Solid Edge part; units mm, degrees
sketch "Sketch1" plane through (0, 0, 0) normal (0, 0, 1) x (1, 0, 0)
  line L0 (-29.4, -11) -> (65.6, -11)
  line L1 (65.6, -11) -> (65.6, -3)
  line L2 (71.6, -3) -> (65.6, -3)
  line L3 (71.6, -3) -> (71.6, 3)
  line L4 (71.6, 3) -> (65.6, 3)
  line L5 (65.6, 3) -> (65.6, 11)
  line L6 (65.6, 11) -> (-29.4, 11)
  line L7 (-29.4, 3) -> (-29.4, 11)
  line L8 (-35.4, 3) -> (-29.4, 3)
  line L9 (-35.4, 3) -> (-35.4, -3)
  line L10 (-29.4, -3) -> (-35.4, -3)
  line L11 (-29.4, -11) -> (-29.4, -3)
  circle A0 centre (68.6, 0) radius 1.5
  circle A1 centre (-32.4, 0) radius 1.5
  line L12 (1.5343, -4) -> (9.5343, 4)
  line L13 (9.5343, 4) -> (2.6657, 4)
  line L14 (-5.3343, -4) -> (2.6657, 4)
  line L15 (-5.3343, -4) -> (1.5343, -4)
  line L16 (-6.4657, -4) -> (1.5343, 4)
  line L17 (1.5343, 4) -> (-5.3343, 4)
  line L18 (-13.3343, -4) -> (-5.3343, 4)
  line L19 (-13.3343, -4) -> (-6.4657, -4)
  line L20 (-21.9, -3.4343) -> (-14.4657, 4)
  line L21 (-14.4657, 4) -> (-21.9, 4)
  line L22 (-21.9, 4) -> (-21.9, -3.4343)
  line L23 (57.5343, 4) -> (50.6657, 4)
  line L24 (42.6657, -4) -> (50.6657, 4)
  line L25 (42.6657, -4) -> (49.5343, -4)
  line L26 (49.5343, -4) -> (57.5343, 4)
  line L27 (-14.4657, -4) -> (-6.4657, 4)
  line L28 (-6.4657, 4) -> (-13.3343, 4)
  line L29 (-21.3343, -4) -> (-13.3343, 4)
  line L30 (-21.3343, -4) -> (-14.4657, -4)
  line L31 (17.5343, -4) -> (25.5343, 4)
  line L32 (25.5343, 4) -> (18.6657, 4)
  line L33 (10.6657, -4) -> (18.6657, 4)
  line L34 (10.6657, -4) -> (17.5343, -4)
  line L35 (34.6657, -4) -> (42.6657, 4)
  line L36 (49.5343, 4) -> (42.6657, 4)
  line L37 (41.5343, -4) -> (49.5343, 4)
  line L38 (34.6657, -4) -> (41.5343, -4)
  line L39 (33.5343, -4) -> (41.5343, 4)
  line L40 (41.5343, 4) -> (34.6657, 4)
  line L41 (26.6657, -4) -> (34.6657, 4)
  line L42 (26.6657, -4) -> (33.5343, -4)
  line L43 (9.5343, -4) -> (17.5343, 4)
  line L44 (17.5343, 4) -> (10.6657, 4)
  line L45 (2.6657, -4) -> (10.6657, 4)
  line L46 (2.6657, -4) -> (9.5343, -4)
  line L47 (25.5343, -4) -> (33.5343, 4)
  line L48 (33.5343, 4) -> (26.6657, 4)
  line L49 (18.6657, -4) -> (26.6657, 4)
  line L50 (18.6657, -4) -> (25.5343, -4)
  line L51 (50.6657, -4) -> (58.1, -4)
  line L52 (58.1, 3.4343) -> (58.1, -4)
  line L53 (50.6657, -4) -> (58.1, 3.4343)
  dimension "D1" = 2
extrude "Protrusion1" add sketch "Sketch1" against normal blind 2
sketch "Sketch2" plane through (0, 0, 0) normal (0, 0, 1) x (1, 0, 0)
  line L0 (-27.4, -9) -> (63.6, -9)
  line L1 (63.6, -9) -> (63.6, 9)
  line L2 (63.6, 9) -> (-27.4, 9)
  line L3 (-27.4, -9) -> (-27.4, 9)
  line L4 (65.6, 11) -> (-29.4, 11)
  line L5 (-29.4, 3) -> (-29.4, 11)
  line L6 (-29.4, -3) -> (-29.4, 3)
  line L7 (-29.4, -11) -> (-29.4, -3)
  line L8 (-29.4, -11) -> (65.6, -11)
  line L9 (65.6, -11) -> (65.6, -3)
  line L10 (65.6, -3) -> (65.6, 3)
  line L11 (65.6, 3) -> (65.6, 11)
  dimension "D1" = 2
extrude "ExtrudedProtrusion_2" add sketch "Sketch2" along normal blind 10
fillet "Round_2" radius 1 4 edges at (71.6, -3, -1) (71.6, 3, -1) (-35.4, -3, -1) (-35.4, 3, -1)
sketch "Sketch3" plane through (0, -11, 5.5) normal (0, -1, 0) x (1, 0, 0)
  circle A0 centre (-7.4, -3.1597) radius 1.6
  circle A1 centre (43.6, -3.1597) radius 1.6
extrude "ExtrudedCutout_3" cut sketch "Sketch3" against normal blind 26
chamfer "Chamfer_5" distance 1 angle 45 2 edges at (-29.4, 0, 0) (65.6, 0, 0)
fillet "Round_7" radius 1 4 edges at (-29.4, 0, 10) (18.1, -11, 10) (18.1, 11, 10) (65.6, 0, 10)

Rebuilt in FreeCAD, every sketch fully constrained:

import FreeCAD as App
import Part
import Sketcher

V = App.Vector


def edges_at(feature, points):
    """Names of the edges that pass closest to the given points."""
    edges = feature.Shape.Edges
    near = lambda p: min(range(len(edges)), key=lambda i: edges[i].distToShape(Part.Vertex(*p))[0])
    return sorted({f"Edge{near(p) + 1}" for p in points})


def add_polygon(sketch, points):
    """Adds a closed chain of lines whose ends are joined by coincident constraints."""
    first, n = sketch.GeometryCount, len(points)
    for a, b in zip(points, points[1:] + points[:1]):
        sketch.addGeometry(Part.LineSegment(App.Vector(*a, 0), App.Vector(*b, 0)), False)
    for i in range(n):
        sketch.addConstraint(Sketcher.Constraint("Coincident", first + i, 2, first + (i + 1) % n, 1))

doc = App.newDocument("Part")
body = doc.addObject("PartDesign::Body", "Body")

sketch1 = doc.addObject("Sketcher::SketchObject", "Sketch")
body.addObject(sketch1)
sketch1.AttachmentSupport = (doc.XY_Plane, [""])
sketch1.MapMode = "FlatFace"
add_polygon(sketch1, [(-29.4, -3), (-29.4, -11), (65.6, -11), (65.6, -3), (71.6, -3), (71.6, 3), (65.6, 3), (65.6, 11), (-29.4, 11), (-29.4, 3), (-35.4, 3), (-35.4, -3)])
add_polygon(sketch1, [(58.1, -4), (50.7, -4), (58.1, 3.4)])
sketch1.addGeometry(Part.Circle(V(-32.4, 0, 0), V(0, 0, 1), 1.5), False)
add_polygon(sketch1, [(-14.5, 4), (-21.9, -3.4), (-21.9, 4)])
add_polygon(sketch1, [(-6.5, 4), (-14.5, -4), (-21.3, -4), (-13.3, 4)])
add_polygon(sketch1, [(1.5, 4), (-6.5, -4), (-13.3, -4), (-5.3, 4)])
add_polygon(sketch1, [(9.5, 4), (1.5, -4), (-5.3, -4), (2.7, 4)])
add_polygon(sketch1, [(17.5, 4), (9.5, -4), (2.7, -4), (10.7, 4)])
add_polygon(sketch1, [(25.5, 4), (17.5, -4), (10.7, -4), (18.7, 4)])
add_polygon(sketch1, [(33.5, 4), (25.5, -4), (18.7, -4), (26.7, 4)])
add_polygon(sketch1, [(41.5, 4), (33.5, -4), (26.7, -4), (34.7, 4)])
add_polygon(sketch1, [(41.5, -4), (34.7, -4), (42.7, 4), (49.5, 4)])
add_polygon(sketch1, [(50.7, 4), (57.5, 4), (49.5, -4), (42.7, -4)])
sketch1.addGeometry(Part.Circle(V(68.6, 0, 0), V(0, 0, 1), 1.5), False)
sketch1.addConstraint([
    Sketcher.Constraint("Vertical", 0),
    Sketcher.Constraint("Horizontal", 1),
    Sketcher.Constraint("Vertical", 2),
    Sketcher.Constraint("Horizontal", 3),
    Sketcher.Constraint("Vertical", 4),
    Sketcher.Constraint("Horizontal", 5),
    Sketcher.Constraint("Vertical", 6),
    Sketcher.Constraint("Horizontal", 7),
    Sketcher.Constraint("Vertical", 8),
    Sketcher.Constraint("Horizontal", 9),
    Sketcher.Constraint("Vertical", 10),
    Sketcher.Constraint("Horizontal", 11),
    Sketcher.Constraint("Horizontal", 12),
    Sketcher.Constraint("Vertical", 14),
    Sketcher.Constraint("Vertical", 17),
    Sketcher.Constraint("Horizontal", 18),
    Sketcher.Constraint("Horizontal", 20),
    Sketcher.Constraint("Horizontal", 22),
    Sketcher.Constraint("Horizontal", 24),
    Sketcher.Constraint("Horizontal", 26),
    Sketcher.Constraint("Horizontal", 28),
    Sketcher.Constraint("Horizontal", 30),
    Sketcher.Constraint("Horizontal", 32),
    Sketcher.Constraint("Horizontal", 34),
    Sketcher.Constraint("Horizontal", 36),
    Sketcher.Constraint("Horizontal", 38),
    Sketcher.Constraint("Horizontal", 40),
    Sketcher.Constraint("Horizontal", 42),
    Sketcher.Constraint("Horizontal", 44),
    Sketcher.Constraint("Horizontal", 46),
    Sketcher.Constraint("Horizontal", 47),
    Sketcher.Constraint("Horizontal", 49),
    Sketcher.Constraint("Horizontal", 51),
    Sketcher.Constraint("Horizontal", 53),
    Sketcher.Constraint("Equal", 15, 55),
    Sketcher.Constraint("Symmetric", 2, 2, 5, 2, -1),
    Sketcher.Constraint("Symmetric", 0, 2, 7, 2, -1),
    Sketcher.Constraint("Symmetric", 18, 2, 19, 2, -1),
    Sketcher.Constraint("Symmetric", 22, 2, 23, 2, -1),
    Sketcher.Constraint("Symmetric", 26, 2, 27, 2, -1),
    Sketcher.Constraint("Symmetric", 30, 2, 31, 2, -1),
    Sketcher.Constraint("Symmetric", 34, 2, 35, 2, -1),
    Sketcher.Constraint("Symmetric", 38, 2, 39, 2, -1),
    Sketcher.Constraint("Symmetric", 42, 2, 43, 2, -1),
    Sketcher.Constraint("Symmetric", 45, 2, 47, 2, -1),
    Sketcher.Constraint("Symmetric", 49, 2, 52, 2, -1),
    Sketcher.Constraint("Symmetric", 12, 2, 54, 2, -1),
    Sketcher.Constraint("PointOnObject", 15, 3, -1),
    Sketcher.Constraint("PointOnObject", 55, 3, -1),
    Sketcher.Constraint("Parallel", 13, 16),
    Sketcher.Constraint("Parallel", 16, 19),
    Sketcher.Constraint("Parallel", 19, 21),
    Sketcher.Constraint("Parallel", 21, 23),
    Sketcher.Constraint("Parallel", 23, 25),
    Sketcher.Constraint("Parallel", 25, 27),
    Sketcher.Constraint("Parallel", 27, 29),
    Sketcher.Constraint("Parallel", 29, 31),
    Sketcher.Constraint("Parallel", 31, 33),
    Sketcher.Constraint("Parallel", 33, 35),
    Sketcher.Constraint("Parallel", 35, 37),
    Sketcher.Constraint("Parallel", 37, 39),
    Sketcher.Constraint("Parallel", 39, 41),
    Sketcher.Constraint("Parallel", 41, 43),
    Sketcher.Constraint("Parallel", 43, 45),
    Sketcher.Constraint("Parallel", 45, 48),
    Sketcher.Constraint("Parallel", 48, 50),
    Sketcher.Constraint("Parallel", 50, 52),
    Sketcher.Constraint("Parallel", 52, 54),
    Sketcher.Constraint("Horizontal", 5, 2, 8, 2),
    Sketcher.Constraint("Horizontal", 3, 2, 10, 2),
    Sketcher.Constraint("Horizontal", 14, 2, 19, 2),
    Sketcher.Constraint("Horizontal", 18, 2, 21, 2),
    Sketcher.Constraint("Horizontal", 22, 2, 25, 2),
    Sketcher.Constraint("Horizontal", 26, 2, 29, 2),
    Sketcher.Constraint("Horizontal", 30, 2, 33, 2),
    Sketcher.Constraint("Horizontal", 34, 2, 37, 2),
    Sketcher.Constraint("Horizontal", 38, 2, 41, 2),
    Sketcher.Constraint("Horizontal", 42, 2, 45, 2),
    Sketcher.Constraint("Horizontal", 46, 2, 48, 2),
    Sketcher.Constraint("Vertical", 21, 2, 24, 2),
    Sketcher.Constraint("Vertical", 25, 2, 28, 2),
    Sketcher.Constraint("Vertical", 29, 2, 32, 2),
    Sketcher.Constraint("Vertical", 33, 2, 36, 2),
    Sketcher.Constraint("Vertical", 37, 2, 40, 2),
    Sketcher.Constraint("Vertical", 41, 2, 44, 2),
    Sketcher.Constraint("Vertical", 46, 2, 50, 2),
    Sketcher.Constraint("Vertical", 48, 2, 53, 2),
    Sketcher.Constraint("Equal", 5, 9),
    Sketcher.Constraint("Equal", 12, 18),
    Sketcher.Constraint("Equal", 11, 4),
    Sketcher.Constraint("Equal", 18, 14),
    Sketcher.Constraint("Diameter", 15, 3.0),
    Sketcher.Constraint("DistanceX", 1, 1, 1, 2, 95.0),
    Sketcher.Constraint("DistanceX", 3, 1, 3, 2, 6.0),
    Sketcher.Constraint("DistanceY", 0, 2, 0, 1, 8.0),
    Sketcher.Constraint("DistanceY", 12, 2, -1, 1, 4.0),
    Sketcher.Constraint("DistanceX", 15, 3, 55, 3, 101.0),
    Sketcher.Constraint("DistanceX", 15, 3, 0, 2, 3.0),
    Sketcher.Constraint("DistanceX", 15, 3, -1, 1, 32.4),
    Sketcher.Constraint("DistanceX", -1, 1, 13, 2, 58.1),
    Sketcher.Constraint("DistanceX", 16, 2, -1, 1, 21.9),
    Sketcher.Constraint("DistanceX", 12, 2, 12, 1, 7.4343),
])
pad1 = doc.addObject("PartDesign::Pad", "Pad")
body.addObject(pad1)
pad1.Profile = sketch1
pad1.Length = 2
pad1.Reversed = True

sketch2 = doc.addObject("Sketcher::SketchObject", "Sketch001")
body.addObject(sketch2)
sketch2.AttachmentSupport = (doc.XY_Plane, [""])
sketch2.MapMode = "FlatFace"
add_polygon(sketch2, [(66, -11), (66, 11), (-29, 11), (-29, -11)])
add_polygon(sketch2, [(64, -9), (-27, -9), (-27, 9), (64, 9)])
sketch2.addConstraint([
    Sketcher.Constraint("Vertical", 0),
    Sketcher.Constraint("Horizontal", 1),
    Sketcher.Constraint("Vertical", 2),
    Sketcher.Constraint("Horizontal", 3),
    Sketcher.Constraint("Horizontal", 4),
    Sketcher.Constraint("Vertical", 5),
    Sketcher.Constraint("Horizontal", 6),
    Sketcher.Constraint("Vertical", 7),
    Sketcher.Constraint("DistanceX", 1, 2, 1, 1, 95.0),
    Sketcher.Constraint("DistanceX", 4, 2, 4, 1, 91.0),
    Sketcher.Constraint("DistanceY", 0, 1, 0, 2, 22.0),
    Sketcher.Constraint("DistanceY", 5, 1, 5, 2, 18.0),
    Sketcher.Constraint("DistanceY", -1, 1, 0, 2, 11.0),
    Sketcher.Constraint("DistanceY", 4, 2, -1, 1, 9.0),
    Sketcher.Constraint("DistanceX", 2, 2, 4, 2, 2.0),
    Sketcher.Constraint("DistanceX", -1, 1, 0, 2, 65.6),
])
pad2 = doc.addObject("PartDesign::Pad", "Pad001")
body.addObject(pad2)
pad2.Profile = sketch2
pad2.Length = 10
doc.recompute()

fillet = doc.addObject("PartDesign::Fillet", "Fillet")
body.addObject(fillet)
fillet.Base = (pad2, edges_at(pad2, [
    (71.6, -3, -1),
    (71.6, 3, -1),
    (-35.4, -3, -1),
    (-35.4, 3, -1),
]))
fillet.Radius = 1

sketch3 = doc.addObject("Sketcher::SketchObject", "Sketch002")
body.addObject(sketch3)
sketch3.AttachmentSupport = (doc.XZ_Plane, [""])
sketch3.MapMode = "FlatFace"
sketch3.AttachmentOffset = App.Placement(V(0, 0, 11), App.Rotation())
sketch3.addGeometry([
    Part.Circle(V(-7.4, 2.3, 0), V(0, 0, 1), 1.6),
    Part.Circle(V(43.6, 2.3, 0), V(0, 0, 1), 1.6),
], False)
sketch3.addConstraint([
    Sketcher.Constraint("Equal", 0, 1),
    Sketcher.Constraint("Horizontal", 0, 3, 1, 3),
    Sketcher.Constraint("Diameter", 0, 3.2),
    Sketcher.Constraint("DistanceX", 0, 3, 1, 3, 51.0),
    Sketcher.Constraint("DistanceX", 0, 3, -1, 1, 7.4),
    Sketcher.Constraint("DistanceY", -1, 1, 0, 3, 2.3403),
])
pocket1 = doc.addObject("PartDesign::Pocket", "Pocket")
body.addObject(pocket1)
pocket1.Profile = sketch3
pocket1.Length = 26
doc.recompute()

chamfer = doc.addObject("PartDesign::Chamfer", "Chamfer")
body.addObject(chamfer)
chamfer.Base = (pocket1, edges_at(pocket1, [(-29.4, 0, 0), (65.6, 0, 0)]))
chamfer.Size = 1
doc.recompute()

fillet2 = doc.addObject("PartDesign::Fillet", "Fillet001")
body.addObject(fillet2)
fillet2.Base = (chamfer, edges_at(chamfer, [
    (-29.4, 0, 10),
    (18.1, -11, 10),
    (18.1, 11, 10),
    (65.6, 0, 10),
]))
fillet2.Radius = 1

doc.recompute()
